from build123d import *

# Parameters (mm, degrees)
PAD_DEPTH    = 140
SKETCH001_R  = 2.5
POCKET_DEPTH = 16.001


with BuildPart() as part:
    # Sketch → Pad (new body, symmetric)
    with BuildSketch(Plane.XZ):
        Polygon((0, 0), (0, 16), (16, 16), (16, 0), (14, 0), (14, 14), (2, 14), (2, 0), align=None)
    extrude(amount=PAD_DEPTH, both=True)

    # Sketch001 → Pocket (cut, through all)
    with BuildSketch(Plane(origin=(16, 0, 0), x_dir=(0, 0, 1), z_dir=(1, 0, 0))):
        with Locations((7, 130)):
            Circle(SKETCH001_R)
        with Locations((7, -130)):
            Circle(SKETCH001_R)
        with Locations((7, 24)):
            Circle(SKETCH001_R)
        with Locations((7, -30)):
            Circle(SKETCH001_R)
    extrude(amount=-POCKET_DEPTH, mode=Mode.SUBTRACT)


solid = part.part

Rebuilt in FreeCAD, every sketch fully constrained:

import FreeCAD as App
import Part
import Sketcher

V = App.Vector
Q = App.Units.Quantity

doc = App.newDocument("Part")
body = doc.addObject("PartDesign::Body", "Body")

# Sketch on XZ plane
sketch1 = doc.addObject("Sketcher::SketchObject", "Sketch")
body.addObject(sketch1)
sketch1.AttachmentSupport = (doc.XZ_Plane, [""])
sketch1.MapMode = "FlatFace"
sketch1.addGeometry([
    Part.LineSegment(V(0, 16, 0), V(0, 0, 0)),  # 0
    Part.LineSegment(V(0, 0, 0), V(2, 0, 0)),  # 1
    Part.LineSegment(V(2, 0, 0), V(2, 14, 0)),  # 2
    Part.LineSegment(V(2, 14, 0), V(14, 14, 0)),  # 3
    Part.LineSegment(V(14, 14, 0), V(14, 0, 0)),  # 4
    Part.LineSegment(V(14, 0, 0), V(16, 0, 0)),  # 5
    Part.LineSegment(V(16, 0, 0), V(16, 16, 0)),  # 6
    Part.LineSegment(V(16, 16, 0), V(0, 16, 0)),  # 7
], False)
sketch1.addConstraint([
    Sketcher.Constraint("Coincident", 0, 2, 1, 1),
    Sketcher.Constraint("Coincident", 1, 2, 2, 1),
    Sketcher.Constraint("Coincident", 2, 2, 3, 1),
    Sketcher.Constraint("Coincident", 3, 2, 4, 1),
    Sketcher.Constraint("Coincident", 4, 2, 5, 1),
    Sketcher.Constraint("Coincident", 5, 2, 6, 1),
    Sketcher.Constraint("Coincident", 6, 2, 7, 1),
    Sketcher.Constraint("Coincident", 7, 2, 0, 1),
    Sketcher.Constraint("Vertical", 0),
    Sketcher.Constraint("Horizontal", 1),
    Sketcher.Constraint("Vertical", 2),
    Sketcher.Constraint("Horizontal", 3),
    Sketcher.Constraint("Vertical", 4),
    Sketcher.Constraint("Horizontal", 5),
    Sketcher.Constraint("Vertical", 6),
    Sketcher.Constraint("Horizontal", 7),
    Sketcher.Constraint("Coincident", 0, 2, -1, 1),
    Sketcher.Constraint("PointOnObject", 4, 2, -1),
    Sketcher.Constraint("Equal", 1, 5),
    Sketcher.Constraint("Equal", 7, 0),
    Sketcher.Constraint("DistanceX", 1, 1, 1, 2, Q("2 mm")),
    Sketcher.Constraint("DistanceX", 3, 1, 3, 2, Q("12 mm")),
    Sketcher.Constraint("DistanceY", 2, 1, 2, 2, Q("14 mm")),
])
pad1 = doc.addObject("PartDesign::Pad", "Pad")
body.addObject(pad1)
pad1.Profile = sketch1
pad1.Length = 280
pad1.Midplane = True

# Sketch on YZ plane
sketch2 = doc.addObject("Sketcher::SketchObject", "Sketch001")
body.addObject(sketch2)
sketch2.AttachmentSupport = (doc.YZ_Plane, [""])
sketch2.MapMode = "FlatFace"
sketch2.AttachmentOffset = App.Placement(V(0, 0, 16), App.Rotation())
sketch2.addGeometry([
    Part.Circle(V(-130, 7, 0), V(0, 0, 1), 2.5),
    Part.Circle(V(130, 7, 0), V(0, 0, 1), 2.5),
    Part.Circle(V(-24, 7, 0), V(0, 0, 1), 2.5),
    Part.Circle(V(30, 7, 0), V(0, 0, 1), 2.5),
], False)
sketch2.addConstraint([
    Sketcher.Constraint("Equal", 0, 1),
    Sketcher.Constraint("Equal", 1, 2),
    Sketcher.Constraint("Equal", 2, 3),
    Sketcher.Constraint("Symmetric", 0, 3, 1, 3, -2),
    Sketcher.Constraint("Horizontal", 1, 3, 2, 3),
    Sketcher.Constraint("Horizontal", 2, 3, 3, 3),
    Sketcher.Constraint("Diameter", 0, Q("5 mm")),
    Sketcher.Constraint("DistanceX", 0, 3, -1, 1, Q("130 mm")),
    Sketcher.Constraint("DistanceY", -1, 1, 0, 3, Q("7 mm")),
    Sketcher.Constraint("DistanceX", 2, 3, -1, 1, Q("24 mm")),
    Sketcher.Constraint("DistanceX", -1, 1, 3, 3, Q("30 mm")),
])
pocket1 = doc.addObject("PartDesign::Pocket", "Pocket")
body.addObject(pocket1)
pocket1.Profile = sketch2
pocket1.Type = "ThroughAll"

doc.recompute()
